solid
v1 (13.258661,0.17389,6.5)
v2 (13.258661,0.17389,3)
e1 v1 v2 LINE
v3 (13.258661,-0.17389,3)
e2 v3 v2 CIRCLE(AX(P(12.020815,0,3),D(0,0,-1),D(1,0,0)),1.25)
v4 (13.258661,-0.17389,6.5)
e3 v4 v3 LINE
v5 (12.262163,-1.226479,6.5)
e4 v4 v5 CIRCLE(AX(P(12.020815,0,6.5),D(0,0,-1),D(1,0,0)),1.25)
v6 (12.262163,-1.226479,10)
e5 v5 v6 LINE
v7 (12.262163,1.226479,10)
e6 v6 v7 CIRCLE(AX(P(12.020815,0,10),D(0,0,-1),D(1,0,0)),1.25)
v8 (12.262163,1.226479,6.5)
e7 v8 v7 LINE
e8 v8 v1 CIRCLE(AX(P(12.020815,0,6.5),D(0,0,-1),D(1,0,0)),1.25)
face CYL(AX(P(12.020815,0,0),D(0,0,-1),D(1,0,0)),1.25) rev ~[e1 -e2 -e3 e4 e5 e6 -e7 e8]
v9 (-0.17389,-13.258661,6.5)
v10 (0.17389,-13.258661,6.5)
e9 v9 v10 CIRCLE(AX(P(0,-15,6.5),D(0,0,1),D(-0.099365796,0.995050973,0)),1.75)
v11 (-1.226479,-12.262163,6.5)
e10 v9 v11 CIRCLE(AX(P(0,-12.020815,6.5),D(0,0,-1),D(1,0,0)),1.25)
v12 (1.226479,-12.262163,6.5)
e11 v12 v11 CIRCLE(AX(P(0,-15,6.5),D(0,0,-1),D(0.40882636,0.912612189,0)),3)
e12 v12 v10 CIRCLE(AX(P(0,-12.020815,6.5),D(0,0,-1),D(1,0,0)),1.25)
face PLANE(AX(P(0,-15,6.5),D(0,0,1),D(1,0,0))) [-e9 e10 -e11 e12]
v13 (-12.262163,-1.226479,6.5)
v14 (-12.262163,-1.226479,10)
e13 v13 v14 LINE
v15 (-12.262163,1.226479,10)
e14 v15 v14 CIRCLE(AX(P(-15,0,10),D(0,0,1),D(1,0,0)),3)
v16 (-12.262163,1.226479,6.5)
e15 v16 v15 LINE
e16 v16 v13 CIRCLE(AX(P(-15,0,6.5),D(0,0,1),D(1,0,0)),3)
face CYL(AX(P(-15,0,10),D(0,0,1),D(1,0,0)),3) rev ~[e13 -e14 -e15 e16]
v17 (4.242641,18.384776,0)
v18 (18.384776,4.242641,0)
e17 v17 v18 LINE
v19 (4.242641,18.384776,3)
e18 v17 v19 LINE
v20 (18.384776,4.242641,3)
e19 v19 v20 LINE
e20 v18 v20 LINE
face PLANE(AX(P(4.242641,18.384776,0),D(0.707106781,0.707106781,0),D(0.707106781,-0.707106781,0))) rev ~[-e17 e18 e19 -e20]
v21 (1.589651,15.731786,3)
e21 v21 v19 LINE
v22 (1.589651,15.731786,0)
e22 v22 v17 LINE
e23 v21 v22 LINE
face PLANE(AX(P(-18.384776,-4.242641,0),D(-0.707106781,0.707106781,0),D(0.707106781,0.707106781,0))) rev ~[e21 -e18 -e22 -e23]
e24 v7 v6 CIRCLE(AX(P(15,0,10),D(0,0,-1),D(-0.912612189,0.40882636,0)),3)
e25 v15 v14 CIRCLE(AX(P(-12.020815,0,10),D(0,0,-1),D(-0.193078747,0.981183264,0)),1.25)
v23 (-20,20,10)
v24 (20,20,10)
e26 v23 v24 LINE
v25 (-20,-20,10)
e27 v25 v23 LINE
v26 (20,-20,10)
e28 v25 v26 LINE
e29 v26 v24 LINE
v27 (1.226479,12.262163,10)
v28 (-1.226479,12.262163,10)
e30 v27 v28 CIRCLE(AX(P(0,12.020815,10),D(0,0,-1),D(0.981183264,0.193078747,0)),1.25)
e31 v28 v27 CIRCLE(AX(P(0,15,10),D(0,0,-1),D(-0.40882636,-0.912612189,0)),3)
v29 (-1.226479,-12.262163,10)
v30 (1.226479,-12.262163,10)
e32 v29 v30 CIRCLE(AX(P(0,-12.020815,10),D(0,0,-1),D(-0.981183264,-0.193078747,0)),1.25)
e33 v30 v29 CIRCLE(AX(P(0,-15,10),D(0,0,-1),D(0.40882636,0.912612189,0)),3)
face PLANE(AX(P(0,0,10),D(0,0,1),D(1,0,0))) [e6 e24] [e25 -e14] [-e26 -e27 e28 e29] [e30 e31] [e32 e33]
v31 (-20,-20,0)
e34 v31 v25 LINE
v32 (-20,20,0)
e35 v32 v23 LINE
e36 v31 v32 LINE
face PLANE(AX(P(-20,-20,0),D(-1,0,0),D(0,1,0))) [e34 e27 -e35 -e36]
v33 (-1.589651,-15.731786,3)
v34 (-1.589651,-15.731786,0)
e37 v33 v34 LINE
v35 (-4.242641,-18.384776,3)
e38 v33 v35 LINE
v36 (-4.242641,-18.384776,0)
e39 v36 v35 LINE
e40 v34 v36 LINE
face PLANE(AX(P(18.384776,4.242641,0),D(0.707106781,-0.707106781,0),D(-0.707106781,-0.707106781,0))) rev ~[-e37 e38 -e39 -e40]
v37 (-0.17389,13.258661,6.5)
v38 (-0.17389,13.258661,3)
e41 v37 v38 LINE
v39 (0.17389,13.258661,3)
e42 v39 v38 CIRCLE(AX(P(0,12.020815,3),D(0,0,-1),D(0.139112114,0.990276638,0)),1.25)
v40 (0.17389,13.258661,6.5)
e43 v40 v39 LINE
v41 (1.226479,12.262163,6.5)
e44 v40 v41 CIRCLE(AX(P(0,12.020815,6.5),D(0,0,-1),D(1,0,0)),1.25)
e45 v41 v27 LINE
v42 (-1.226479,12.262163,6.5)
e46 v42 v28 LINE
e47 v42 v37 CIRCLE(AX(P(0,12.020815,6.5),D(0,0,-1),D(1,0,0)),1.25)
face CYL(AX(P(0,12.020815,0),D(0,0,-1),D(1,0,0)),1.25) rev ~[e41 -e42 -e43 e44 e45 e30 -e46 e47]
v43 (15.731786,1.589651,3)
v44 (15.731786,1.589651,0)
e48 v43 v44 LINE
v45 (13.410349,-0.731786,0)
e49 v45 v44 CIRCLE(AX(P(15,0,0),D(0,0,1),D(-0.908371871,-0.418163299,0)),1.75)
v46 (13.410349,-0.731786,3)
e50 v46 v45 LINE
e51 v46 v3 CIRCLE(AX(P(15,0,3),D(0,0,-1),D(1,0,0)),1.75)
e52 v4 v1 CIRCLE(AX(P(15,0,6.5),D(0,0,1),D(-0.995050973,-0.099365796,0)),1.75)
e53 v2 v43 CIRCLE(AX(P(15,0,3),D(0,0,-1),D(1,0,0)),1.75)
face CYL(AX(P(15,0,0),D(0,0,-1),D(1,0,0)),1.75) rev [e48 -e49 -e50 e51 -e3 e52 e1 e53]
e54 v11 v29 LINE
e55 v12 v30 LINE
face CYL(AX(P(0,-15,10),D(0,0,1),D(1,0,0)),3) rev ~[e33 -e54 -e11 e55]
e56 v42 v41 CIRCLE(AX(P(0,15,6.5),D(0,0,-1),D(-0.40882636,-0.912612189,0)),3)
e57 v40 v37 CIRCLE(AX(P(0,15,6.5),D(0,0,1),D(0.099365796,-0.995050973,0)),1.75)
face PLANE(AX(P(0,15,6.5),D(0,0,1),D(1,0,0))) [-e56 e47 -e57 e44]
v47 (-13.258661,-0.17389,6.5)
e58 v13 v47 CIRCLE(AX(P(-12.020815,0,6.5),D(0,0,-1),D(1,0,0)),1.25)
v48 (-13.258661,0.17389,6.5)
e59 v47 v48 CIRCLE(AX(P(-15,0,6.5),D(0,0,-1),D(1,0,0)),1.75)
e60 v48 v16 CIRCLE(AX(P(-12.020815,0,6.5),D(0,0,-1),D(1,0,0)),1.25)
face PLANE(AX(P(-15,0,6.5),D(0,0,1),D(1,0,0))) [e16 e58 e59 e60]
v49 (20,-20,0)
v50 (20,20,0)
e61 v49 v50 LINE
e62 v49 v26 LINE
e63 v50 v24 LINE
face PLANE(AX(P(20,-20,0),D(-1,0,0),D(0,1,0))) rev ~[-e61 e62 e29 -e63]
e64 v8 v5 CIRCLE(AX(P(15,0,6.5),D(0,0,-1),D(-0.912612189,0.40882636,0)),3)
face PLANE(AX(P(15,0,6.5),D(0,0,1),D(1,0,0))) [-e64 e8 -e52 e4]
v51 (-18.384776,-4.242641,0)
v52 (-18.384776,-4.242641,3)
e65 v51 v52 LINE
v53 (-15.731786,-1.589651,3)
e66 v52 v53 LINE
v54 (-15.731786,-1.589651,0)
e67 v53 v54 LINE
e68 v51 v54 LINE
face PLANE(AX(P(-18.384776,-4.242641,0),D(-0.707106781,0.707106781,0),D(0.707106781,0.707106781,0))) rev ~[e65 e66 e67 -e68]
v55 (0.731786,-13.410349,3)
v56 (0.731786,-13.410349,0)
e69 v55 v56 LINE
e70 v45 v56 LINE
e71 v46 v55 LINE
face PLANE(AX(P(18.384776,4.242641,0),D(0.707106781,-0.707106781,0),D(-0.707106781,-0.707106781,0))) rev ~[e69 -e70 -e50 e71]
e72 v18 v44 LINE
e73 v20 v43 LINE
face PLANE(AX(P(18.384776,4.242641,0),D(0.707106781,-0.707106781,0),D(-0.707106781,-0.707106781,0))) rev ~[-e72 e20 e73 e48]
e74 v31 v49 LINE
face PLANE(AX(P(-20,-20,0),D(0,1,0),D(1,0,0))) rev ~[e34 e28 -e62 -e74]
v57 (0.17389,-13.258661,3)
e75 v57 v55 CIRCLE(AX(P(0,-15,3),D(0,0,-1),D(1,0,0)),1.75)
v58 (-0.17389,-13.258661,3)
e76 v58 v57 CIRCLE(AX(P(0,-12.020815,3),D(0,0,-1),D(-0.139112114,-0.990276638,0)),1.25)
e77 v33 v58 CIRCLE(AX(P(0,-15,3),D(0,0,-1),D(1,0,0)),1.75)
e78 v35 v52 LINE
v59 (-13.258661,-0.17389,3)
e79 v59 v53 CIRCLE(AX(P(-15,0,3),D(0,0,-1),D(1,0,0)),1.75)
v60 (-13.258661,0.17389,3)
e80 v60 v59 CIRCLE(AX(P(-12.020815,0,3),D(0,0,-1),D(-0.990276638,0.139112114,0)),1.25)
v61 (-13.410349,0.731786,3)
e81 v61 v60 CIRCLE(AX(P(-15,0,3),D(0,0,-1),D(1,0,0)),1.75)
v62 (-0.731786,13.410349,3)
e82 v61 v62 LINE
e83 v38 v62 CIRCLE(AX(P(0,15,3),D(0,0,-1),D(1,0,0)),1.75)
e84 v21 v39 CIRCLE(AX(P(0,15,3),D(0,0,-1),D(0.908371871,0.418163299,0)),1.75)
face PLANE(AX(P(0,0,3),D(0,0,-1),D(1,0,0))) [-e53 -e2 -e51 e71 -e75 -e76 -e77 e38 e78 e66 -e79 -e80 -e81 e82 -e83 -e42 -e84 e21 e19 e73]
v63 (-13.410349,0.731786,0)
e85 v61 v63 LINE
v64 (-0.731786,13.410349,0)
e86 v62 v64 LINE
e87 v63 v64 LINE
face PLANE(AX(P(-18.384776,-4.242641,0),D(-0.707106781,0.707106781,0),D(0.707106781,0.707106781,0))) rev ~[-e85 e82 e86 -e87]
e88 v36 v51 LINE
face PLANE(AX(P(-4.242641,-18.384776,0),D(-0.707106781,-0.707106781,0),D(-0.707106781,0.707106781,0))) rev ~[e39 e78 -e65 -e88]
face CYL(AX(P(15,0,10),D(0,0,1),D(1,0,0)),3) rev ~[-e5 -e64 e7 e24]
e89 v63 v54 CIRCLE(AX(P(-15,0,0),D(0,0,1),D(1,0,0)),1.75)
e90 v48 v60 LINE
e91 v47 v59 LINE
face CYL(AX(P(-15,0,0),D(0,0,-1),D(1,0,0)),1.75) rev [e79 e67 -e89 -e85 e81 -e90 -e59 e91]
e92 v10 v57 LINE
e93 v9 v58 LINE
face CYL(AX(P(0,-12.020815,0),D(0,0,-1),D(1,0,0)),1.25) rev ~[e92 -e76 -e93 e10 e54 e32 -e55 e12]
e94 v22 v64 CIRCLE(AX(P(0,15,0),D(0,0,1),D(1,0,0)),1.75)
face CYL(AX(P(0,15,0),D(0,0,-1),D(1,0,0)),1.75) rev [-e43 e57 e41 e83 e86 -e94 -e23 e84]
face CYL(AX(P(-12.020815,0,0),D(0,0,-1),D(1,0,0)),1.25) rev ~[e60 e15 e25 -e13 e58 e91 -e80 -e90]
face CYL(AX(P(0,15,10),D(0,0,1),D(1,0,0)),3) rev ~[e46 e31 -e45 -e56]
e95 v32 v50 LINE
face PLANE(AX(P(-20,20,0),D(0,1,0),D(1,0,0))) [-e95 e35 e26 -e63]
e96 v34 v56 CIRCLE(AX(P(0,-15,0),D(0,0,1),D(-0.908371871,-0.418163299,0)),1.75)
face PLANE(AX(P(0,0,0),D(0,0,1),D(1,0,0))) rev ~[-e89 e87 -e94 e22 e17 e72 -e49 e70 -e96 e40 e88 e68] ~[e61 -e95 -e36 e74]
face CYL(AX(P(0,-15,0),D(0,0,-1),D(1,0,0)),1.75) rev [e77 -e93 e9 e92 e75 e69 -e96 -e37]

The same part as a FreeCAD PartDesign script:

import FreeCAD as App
import Part
import Sketcher

V = App.Vector
Q = App.Units.Quantity

doc = App.newDocument("Part")
body = doc.addObject("PartDesign::Body", "Body")

# Sketch on XY plane
sketch1 = doc.addObject("Sketcher::SketchObject", "Sketch")
body.addObject(sketch1)
sketch1.AttachmentSupport = (doc.XY_Plane, [""])
sketch1.MapMode = "FlatFace"
sketch1.addGeometry(Part.LineSegment(V(-20, 20, 0), V(-20, -20, 0)), False)
sketch1.addGeometry(Part.LineSegment(V(-20, -20, 0), V(20, -20, 0)), False)
sketch1.addGeometry(Part.LineSegment(V(20, -20, 0), V(20, 20, 0)), False)
sketch1.addGeometry(Part.LineSegment(V(20, 20, 0), V(-20, 20, 0)), False)
sketch1.addGeometry(Part.Circle(V(0, -15, 0), V(0, 0, 1), 1.8), False)
sketch1.addGeometry(Part.Circle(V(-15, 0, 0), V(0, 0, 1), 1.8), False)
sketch1.addGeometry(Part.Circle(V(15, 0, 0), V(0, 0, 1), 1.8), False)
sketch1.addGeometry(Part.Circle(V(0, 15, 0), V(0, 0, 1), 1.8), False)
sketch1.addConstraint(Sketcher.Constraint("Coincident", 0, 2, 1, 1))
sketch1.addConstraint(Sketcher.Constraint("Coincident", 1, 2, 2, 1))
sketch1.addConstraint(Sketcher.Constraint("Coincident", 2, 2, 3, 1))
sketch1.addConstraint(Sketcher.Constraint("Coincident", 3, 2, 0, 1))
sketch1.addConstraint(Sketcher.Constraint("Vertical", 0))
sketch1.addConstraint(Sketcher.Constraint("Horizontal", 1))
sketch1.addConstraint(Sketcher.Constraint("Vertical", 2))
sketch1.addConstraint(Sketcher.Constraint("Horizontal", 3))
sketch1.addConstraint(Sketcher.Constraint("Equal", 4, 5))
sketch1.addConstraint(Sketcher.Constraint("Equal", 5, 6))
sketch1.addConstraint(Sketcher.Constraint("Equal", 6, 7))
sketch1.addConstraint(Sketcher.Constraint("Symmetric", 5, 3, 6, 3, -1, 1))
sketch1.addConstraint(Sketcher.Constraint("Symmetric", 4, 3, 7, 3, -1, 1))
sketch1.addConstraint(Sketcher.Constraint("Symmetric", 0, 2, 2, 2, -1, 1))
sketch1.addConstraint(Sketcher.Constraint("PointOnObject", 4, 3, -2))
sketch1.addConstraint(Sketcher.Constraint("PointOnObject", 5, 3, -1))
sketch1.addConstraint(Sketcher.Constraint("Equal", 3, 0))
sketch1.addConstraint(Sketcher.Constraint("Diameter", 4, Q("3.5 mm")))
sketch1.addConstraint(Sketcher.Constraint("DistanceX", 1, 1, 1, 2, Q("40 mm")))
sketch1.addConstraint(Sketcher.Constraint("DistanceY", 4, 3, -1, 1, Q("15 mm")))
sketch1.addConstraint(Sketcher.Constraint("DistanceX", 5, 3, -1, 1, Q("15 mm")))
pad1 = doc.addObject("PartDesign::Pad", "Pad")
body.addObject(pad1)
pad1.Profile = sketch1
pad1.Length = 10

# Sketch on XY plane
sketch2 = doc.addObject("Sketcher::SketchObject", "Sketch001")
body.addObject(sketch2)
sketch2.AttachmentSupport = (doc.XY_Plane, [""])
sketch2.MapMode = "FlatFace"
sketch2.AttachmentOffset = App.Placement(V(0, 0, 10), App.Rotation())
sketch2.addGeometry(Part.Circle(V(-15, 0, 0), V(0, 0, 1), 3), False)
sketch2.addGeometry(Part.Circle(V(0, 15, 0), V(0, 0, 1), 3), False)
sketch2.addGeometry(Part.Circle(V(15, 0, 0), V(0, 0, 1), 3), False)
sketch2.addGeometry(Part.Circle(V(0, -15, 0), V(0, 0, 1), 3), False)
sketch2.addConstraint(Sketcher.Constraint("Equal", 0, 1))
sketch2.addConstraint(Sketcher.Constraint("Equal", 1, 2))
sketch2.addConstraint(Sketcher.Constraint("Equal", 2, 3))
sketch2.addConstraint(Sketcher.Constraint("Symmetric", 0, 3, 2, 3, -1, 1))
sketch2.addConstraint(Sketcher.Constraint("Symmetric", 1, 3, 3, 3, -1, 1))
sketch2.addConstraint(Sketcher.Constraint("PointOnObject", 0, 3, -1))
sketch2.addConstraint(Sketcher.Constraint("PointOnObject", 1, 3, -2))
sketch2.addConstraint(Sketcher.Constraint("Diameter", 0, Q("6 mm")))
sketch2.addConstraint(Sketcher.Constraint("DistanceX", 0, 3, -1, 1, Q("15 mm")))
sketch2.addConstraint(Sketcher.Constraint("DistanceY", -1, 1, 1, 3, Q("15 mm")))
pocket1 = doc.addObject("PartDesign::Pocket", "Pocket")
body.addObject(pocket1)
pocket1.Profile = sketch2
pocket1.Length = 3.5

# Sketch on XY plane
sketch3 = doc.addObject("Sketcher::SketchObject", "Sketch002")
body.addObject(sketch3)
sketch3.AttachmentSupport = (doc.XY_Plane, [""])
sketch3.MapMode = "FlatFace"
sketch3.addGeometry(Part.LineSegment(V(4, 18, 0), V(18, 4, 0)), False)
sketch3.addGeometry(Part.LineSegment(V(18, 4, 0), V(-4, -18, 0)), False)
sketch3.addGeometry(Part.LineSegment(V(-4, -18, 0), V(-18, -4, 0)), False)
sketch3.addGeometry(Part.LineSegment(V(-18, -4, 0), V(4, 18, 0)), False)
sketch3.addConstraint(Sketcher.Constraint("Coincident", 0, 2, 1, 1))
sketch3.addConstraint(Sketcher.Constraint("Coincident", 1, 2, 2, 1))
sketch3.addConstraint(Sketcher.Constraint("Coincident", 2, 2, 3, 1))
sketch3.addConstraint(Sketcher.Constraint("Coincident", 3, 2, 0, 1))
sketch3.addConstraint(Sketcher.Constraint("Symmetric", 0, 2, 2, 2, -1, 1))
sketch3.addConstraint(Sketcher.Constraint("Symmetric", 1, 2, 3, 2, -1, 1))
sketch3.addConstraint(Sketcher.Constraint("Perpendicular", 0, 1))
sketch3.addConstraint(Sketcher.Constraint("Angle", 0, Q("-45 deg")))
sketch3.addConstraint(Sketcher.Constraint("Distance", 0, Q("19.999999 mm")))
sketch3.addConstraint(Sketcher.Constraint("Distance", 1, Q("32 mm")))
pocket2 = doc.addObject("PartDesign::Pocket", "Pocket001")
body.addObject(pocket2)
pocket2.Profile = sketch3
pocket2.Length = 3
pocket2.Reversed = True

# Sketch on XY plane
sketch4 = doc.addObject("Sketcher::SketchObject", "Sketch003")
body.addObject(sketch4)
sketch4.AttachmentSupport = (doc.XY_Plane, [""])
sketch4.MapMode = "FlatFace"
sketch4.addGeometry(Part.Circle(V(0, -12, 0), V(0, 0, 1), 1.2), False)
sketch4.addGeometry(Part.Circle(V(12, 0, 0), V(0, 0, 1), 1.2), False)
sketch4.addGeometry(Part.Circle(V(-12, 0, 0), V(0, 0, 1), 1.2), False)
sketch4.addGeometry(Part.Circle(V(0, 12, 0), V(0, 0, 1), 1.2), False)
sketch4.addConstraint(Sketcher.Constraint("Equal", 0, 1))
sketch4.addConstraint(Sketcher.Constraint("Equal", 1, 2))
sketch4.addConstraint(Sketcher.Constraint("Equal", 2, 3))
sketch4.addConstraint(Sketcher.Constraint("Symmetric", 1, 3, 2, 3, -1, 1))
sketch4.addConstraint(Sketcher.Constraint("Symmetric", 0, 3, 3, 3, -1, 1))
sketch4.addConstraint(Sketcher.Constraint("PointOnObject", 0, 3, -2))
sketch4.addConstraint(Sketcher.Constraint("PointOnObject", 1, 3, -1))
sketch4.addConstraint(Sketcher.Constraint("Diameter", 0, Q("2.5 mm")))
sketch4.addConstraint(Sketcher.Constraint("DistanceX", 2, 3, 1, 3, Q("24.04163 mm")))
sketch4.addConstraint(Sketcher.Constraint("DistanceY", 0, 3, 3, 3, Q("24.04163 mm")))
pocket3 = doc.addObject("PartDesign::Pocket", "Pocket002")
body.addObject(pocket3)
pocket3.Profile = sketch4
pocket3.Type = "ThroughAll"
pocket3.Reversed = True

doc.recompute()
